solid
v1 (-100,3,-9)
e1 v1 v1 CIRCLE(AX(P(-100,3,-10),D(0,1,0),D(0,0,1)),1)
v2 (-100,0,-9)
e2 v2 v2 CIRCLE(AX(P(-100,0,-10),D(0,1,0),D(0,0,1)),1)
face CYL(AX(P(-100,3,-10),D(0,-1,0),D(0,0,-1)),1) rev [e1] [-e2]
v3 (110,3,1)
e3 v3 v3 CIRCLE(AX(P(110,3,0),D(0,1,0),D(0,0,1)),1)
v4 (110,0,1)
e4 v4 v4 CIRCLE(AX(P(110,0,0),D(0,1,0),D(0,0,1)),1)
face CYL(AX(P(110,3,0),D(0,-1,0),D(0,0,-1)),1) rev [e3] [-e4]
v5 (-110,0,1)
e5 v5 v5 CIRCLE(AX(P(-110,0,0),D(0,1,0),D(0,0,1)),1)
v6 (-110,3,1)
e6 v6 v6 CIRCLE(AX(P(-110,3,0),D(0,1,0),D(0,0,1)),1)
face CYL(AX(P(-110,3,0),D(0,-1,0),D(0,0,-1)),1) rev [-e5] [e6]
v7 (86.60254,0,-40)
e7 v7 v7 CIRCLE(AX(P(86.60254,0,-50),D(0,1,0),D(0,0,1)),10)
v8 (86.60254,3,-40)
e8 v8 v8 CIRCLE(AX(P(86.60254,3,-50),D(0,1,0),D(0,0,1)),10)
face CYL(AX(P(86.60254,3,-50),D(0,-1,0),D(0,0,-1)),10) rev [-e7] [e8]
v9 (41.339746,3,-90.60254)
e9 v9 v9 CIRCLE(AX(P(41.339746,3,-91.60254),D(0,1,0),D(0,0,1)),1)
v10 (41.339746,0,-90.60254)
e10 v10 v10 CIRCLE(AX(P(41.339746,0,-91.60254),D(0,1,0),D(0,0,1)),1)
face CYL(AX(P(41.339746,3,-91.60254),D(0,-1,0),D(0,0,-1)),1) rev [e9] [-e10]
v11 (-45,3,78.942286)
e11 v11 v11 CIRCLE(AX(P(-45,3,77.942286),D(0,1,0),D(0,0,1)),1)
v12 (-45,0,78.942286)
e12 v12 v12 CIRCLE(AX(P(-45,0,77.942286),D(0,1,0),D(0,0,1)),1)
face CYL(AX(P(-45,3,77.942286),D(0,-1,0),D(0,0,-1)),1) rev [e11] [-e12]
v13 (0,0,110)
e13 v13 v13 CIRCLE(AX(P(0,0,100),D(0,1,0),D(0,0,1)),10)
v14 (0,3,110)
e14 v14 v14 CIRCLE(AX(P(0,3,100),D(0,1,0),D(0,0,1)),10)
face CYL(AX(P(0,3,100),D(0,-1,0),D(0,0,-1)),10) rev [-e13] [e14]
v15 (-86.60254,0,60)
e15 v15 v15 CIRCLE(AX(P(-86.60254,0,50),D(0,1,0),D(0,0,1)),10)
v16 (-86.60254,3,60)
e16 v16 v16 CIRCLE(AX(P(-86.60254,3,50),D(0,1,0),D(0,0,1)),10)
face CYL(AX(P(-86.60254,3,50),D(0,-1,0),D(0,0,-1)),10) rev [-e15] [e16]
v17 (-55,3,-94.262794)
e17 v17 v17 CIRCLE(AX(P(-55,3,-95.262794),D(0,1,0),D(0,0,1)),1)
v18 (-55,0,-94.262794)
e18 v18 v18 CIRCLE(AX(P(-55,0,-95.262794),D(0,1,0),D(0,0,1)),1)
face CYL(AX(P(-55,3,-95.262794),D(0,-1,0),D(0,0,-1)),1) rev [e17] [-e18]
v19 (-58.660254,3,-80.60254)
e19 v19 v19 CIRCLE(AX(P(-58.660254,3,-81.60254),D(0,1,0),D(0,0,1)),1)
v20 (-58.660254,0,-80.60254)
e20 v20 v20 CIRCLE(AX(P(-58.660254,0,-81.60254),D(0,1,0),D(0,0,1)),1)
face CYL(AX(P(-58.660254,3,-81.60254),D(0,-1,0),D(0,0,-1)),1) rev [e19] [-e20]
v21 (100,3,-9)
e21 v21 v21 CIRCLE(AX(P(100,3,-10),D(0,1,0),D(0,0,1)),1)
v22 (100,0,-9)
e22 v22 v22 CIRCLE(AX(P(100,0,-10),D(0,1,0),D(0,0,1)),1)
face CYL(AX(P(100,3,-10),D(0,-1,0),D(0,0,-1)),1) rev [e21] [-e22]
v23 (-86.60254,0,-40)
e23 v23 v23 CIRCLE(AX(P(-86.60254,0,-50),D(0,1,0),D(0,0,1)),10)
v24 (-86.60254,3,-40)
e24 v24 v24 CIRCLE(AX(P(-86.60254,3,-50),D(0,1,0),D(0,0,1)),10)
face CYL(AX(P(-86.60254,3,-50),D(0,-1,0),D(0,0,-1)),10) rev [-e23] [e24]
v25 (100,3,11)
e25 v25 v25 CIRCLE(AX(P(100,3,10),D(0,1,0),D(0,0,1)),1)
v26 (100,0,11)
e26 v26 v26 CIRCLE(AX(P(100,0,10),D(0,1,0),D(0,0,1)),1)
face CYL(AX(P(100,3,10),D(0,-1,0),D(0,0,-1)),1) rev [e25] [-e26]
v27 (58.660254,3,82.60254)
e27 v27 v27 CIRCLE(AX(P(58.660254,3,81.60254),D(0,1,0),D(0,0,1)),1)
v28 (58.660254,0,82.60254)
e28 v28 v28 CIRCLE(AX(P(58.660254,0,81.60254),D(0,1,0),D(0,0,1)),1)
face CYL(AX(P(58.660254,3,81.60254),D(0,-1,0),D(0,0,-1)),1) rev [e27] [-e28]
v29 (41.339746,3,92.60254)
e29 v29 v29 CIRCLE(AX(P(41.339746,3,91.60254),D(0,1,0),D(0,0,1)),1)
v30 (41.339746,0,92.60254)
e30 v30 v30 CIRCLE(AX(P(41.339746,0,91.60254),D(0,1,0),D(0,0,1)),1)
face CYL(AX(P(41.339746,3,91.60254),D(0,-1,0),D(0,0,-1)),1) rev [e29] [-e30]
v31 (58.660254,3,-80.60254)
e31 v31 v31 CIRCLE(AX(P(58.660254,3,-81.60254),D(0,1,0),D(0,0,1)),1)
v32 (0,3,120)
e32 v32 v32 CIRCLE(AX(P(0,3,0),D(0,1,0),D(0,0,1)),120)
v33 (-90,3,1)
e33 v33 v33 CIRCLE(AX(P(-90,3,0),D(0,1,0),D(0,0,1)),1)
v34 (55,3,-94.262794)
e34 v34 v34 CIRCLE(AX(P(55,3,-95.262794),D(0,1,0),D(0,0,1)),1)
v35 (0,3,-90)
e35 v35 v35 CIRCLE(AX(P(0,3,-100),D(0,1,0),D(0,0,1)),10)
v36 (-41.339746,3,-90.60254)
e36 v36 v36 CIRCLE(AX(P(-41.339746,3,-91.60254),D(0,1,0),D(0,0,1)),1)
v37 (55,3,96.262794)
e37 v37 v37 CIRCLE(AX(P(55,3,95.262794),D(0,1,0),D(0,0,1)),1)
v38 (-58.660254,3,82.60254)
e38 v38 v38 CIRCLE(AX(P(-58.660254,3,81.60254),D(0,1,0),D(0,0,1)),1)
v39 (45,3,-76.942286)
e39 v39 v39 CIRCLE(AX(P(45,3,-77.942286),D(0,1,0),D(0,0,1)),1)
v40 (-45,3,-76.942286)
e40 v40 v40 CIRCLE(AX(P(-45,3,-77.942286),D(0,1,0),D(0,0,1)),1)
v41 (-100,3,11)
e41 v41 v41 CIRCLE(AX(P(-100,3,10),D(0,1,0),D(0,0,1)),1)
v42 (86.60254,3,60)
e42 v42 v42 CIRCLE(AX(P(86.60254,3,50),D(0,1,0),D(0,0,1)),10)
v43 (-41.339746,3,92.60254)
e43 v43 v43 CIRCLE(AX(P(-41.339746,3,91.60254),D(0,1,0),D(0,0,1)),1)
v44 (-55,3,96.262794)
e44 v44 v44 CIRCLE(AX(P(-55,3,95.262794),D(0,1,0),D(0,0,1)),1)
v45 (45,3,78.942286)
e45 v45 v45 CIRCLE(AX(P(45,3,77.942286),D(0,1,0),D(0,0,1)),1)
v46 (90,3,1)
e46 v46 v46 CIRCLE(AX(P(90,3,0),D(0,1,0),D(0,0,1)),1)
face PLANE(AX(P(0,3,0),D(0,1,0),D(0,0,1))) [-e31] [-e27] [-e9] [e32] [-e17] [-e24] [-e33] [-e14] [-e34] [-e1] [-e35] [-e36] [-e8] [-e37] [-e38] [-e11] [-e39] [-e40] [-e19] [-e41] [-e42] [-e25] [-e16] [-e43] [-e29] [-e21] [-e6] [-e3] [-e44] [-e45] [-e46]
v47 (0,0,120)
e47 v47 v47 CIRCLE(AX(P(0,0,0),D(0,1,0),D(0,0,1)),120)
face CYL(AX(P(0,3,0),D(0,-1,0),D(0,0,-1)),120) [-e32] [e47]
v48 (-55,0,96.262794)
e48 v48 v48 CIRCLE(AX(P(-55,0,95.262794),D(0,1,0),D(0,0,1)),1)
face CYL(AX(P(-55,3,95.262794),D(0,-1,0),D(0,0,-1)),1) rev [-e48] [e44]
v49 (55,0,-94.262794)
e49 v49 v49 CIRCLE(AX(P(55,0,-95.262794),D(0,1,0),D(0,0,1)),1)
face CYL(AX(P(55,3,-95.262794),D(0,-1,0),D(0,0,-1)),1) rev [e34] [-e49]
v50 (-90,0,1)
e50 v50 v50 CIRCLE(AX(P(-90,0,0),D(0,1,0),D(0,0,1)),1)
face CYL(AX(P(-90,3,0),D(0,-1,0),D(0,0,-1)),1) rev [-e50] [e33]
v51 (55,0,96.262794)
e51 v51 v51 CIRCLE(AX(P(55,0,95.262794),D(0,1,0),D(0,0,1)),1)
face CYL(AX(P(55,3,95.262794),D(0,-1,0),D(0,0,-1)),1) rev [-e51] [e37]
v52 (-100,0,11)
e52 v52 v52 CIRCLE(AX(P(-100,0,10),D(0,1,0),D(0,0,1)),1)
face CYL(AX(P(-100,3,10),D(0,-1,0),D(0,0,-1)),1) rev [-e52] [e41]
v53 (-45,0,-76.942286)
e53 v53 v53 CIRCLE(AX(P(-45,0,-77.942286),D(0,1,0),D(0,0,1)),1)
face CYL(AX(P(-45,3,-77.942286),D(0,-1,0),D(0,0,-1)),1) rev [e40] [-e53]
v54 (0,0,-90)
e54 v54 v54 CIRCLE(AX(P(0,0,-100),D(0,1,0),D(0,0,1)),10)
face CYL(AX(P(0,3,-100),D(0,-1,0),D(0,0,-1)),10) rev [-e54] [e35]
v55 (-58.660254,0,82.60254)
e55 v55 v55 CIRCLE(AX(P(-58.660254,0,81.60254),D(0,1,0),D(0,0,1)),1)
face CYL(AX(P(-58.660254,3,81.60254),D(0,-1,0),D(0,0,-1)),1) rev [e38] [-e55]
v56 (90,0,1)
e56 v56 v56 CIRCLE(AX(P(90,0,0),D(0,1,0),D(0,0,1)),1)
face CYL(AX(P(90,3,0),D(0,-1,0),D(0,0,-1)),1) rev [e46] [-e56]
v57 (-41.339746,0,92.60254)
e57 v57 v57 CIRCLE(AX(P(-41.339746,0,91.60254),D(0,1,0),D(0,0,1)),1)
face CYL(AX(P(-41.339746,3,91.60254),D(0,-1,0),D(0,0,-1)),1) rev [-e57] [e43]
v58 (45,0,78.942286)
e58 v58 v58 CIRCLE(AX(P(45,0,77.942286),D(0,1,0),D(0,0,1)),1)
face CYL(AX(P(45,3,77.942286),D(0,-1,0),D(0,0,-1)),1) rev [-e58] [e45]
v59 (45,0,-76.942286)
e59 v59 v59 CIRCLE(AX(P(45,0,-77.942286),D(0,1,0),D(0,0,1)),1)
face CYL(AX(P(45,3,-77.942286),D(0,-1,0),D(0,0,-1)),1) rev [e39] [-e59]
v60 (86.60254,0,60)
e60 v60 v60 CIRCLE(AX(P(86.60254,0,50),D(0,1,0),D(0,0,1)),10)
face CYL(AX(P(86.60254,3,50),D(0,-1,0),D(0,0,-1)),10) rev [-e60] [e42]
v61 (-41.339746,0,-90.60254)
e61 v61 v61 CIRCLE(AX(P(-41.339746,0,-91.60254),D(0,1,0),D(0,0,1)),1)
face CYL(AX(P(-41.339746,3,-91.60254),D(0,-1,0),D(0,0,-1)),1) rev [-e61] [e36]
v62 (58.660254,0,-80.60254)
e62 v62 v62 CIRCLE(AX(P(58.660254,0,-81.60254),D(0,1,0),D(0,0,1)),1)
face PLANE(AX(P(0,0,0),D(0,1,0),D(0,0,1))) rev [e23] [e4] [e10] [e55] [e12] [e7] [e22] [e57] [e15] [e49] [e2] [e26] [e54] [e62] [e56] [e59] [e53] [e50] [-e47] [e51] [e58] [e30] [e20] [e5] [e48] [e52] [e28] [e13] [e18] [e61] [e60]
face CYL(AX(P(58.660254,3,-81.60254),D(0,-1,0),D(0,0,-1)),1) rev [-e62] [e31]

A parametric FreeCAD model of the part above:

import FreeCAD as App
import Part
import Sketcher

V = App.Vector
Q = App.Units.Quantity

doc = App.newDocument("Part")
params = doc.addObject("Spreadsheet::Sheet", "Params")
for row, (alias, value) in enumerate([
    ("sketch1_diameter", "240 mm"),
    ("sketch1_diameter2", "2 mm"),
    ("sketch1_diameter3", "20 mm"),
    ("pad1_length", "3 mm"),
], start=1):
    params.set(f"A{row}", alias)
    params.set(f"B{row}", "=" + value)
    params.setAlias(f"B{row}", alias)

body = doc.addObject("PartDesign::Body", "Body")

# Sketch on XZ plane
sketch1 = body.newObject("Sketcher::SketchObject", "Sketch")
sketch1.AttachmentSupport = (doc.getObject("XZ_Plane"), [""])
sketch1.MapMode = "FlatFace"
sketch1.addGeometry([
    Part.Circle(V(0, 0, 0), V(0, 0, 1), 120),  # 0
    Part.Circle(V(-58.7, -81.6, 0), V(0, 0, 1), 1),  # 1
    Part.Circle(V(-86.6, -50, 0), V(0, 0, 1), 10),  # 2
    Part.Circle(V(-100, -10, 0), V(0, 0, 1), 1),  # 3
    Part.Circle(V(-55, -95.3, 0), V(0, 0, 1), 1),  # 4
    Part.Circle(V(-41.3, -91.6, 0), V(0, 0, 1), 1),  # 5
    Part.Circle(V(-45, -77.9, 0), V(0, 0, 1), 1),  # 6
    Part.Circle(V(0, -100, 0), V(0, 0, 1), 10),  # 7
    Part.Circle(V(-110, 0, 0), V(0, 0, 1), 1),  # 8
    Part.Circle(V(-100, 10, 0), V(0, 0, 1), 1),  # 9
    Part.Circle(V(-90, 0, 0), V(0, 0, 1), 1),  # 10
    Part.Circle(V(-86.6, 50, 0), V(0, 0, 1), 10),  # 11
    Part.Circle(V(-58.7, 81.6, 0), V(0, 0, 1), 1),  # 12
    Part.Circle(V(-45, 77.9, 0), V(0, 0, 1), 1),  # 13
    Part.Circle(V(-55, 95.3, 0), V(0, 0, 1), 1),  # 14
    Part.Circle(V(-41.3, 91.6, 0), V(0, 0, 1), 1),  # 15
    Part.Circle(V(41.3, -91.6, 0), V(0, 0, 1), 1),  # 16
    Part.Circle(V(55, -95.3, 0), V(0, 0, 1), 1),  # 17
    Part.Circle(V(45, -77.9, 0), V(0, 0, 1), 1),  # 18
    Part.Circle(V(58.7, -81.6, 0), V(0, 0, 1), 1),  # 19
    Part.Circle(V(86.6, -50, 0), V(0, 0, 1), 10),  # 20
    Part.Circle(V(90, 0, 0), V(0, 0, 1), 1),  # 21
    Part.Circle(V(100, -10, 0), V(0, 0, 1), 1),  # 22
    Part.Circle(V(110, 0, 0), V(0, 0, 1), 1),  # 23
    Part.Circle(V(0, 100, 0), V(0, 0, 1), 10),  # 24
    Part.Circle(V(45, 77.9, 0), V(0, 0, 1), 1),  # 25
    Part.Circle(V(41.3, 91.6, 0), V(0, 0, 1), 1),  # 26
    Part.Circle(V(55, 95.3, 0), V(0, 0, 1), 1),  # 27
    Part.Circle(V(100, 10, 0), V(0, 0, 1), 1),  # 28
    Part.Circle(V(86.6, 50, 0), V(0, 0, 1), 10),  # 29
    Part.Circle(V(58.7, 81.6, 0), V(0, 0, 1), 1),  # 30
], False)
sketch1.addConstraint([
    Sketcher.Constraint("Coincident", 0, 3, -1, 1),
    Sketcher.Constraint("Equal", 1, 3),
    Sketcher.Constraint("Equal", 3, 4),
    Sketcher.Constraint("Equal", 4, 5),
    Sketcher.Constraint("Equal", 5, 6),
    Sketcher.Constraint("Equal", 2, 7),
    Sketcher.Constraint("Equal", 6, 8),
    Sketcher.Constraint("Equal", 8, 9),
    Sketcher.Constraint("Equal", 9, 10),
    Sketcher.Constraint("Equal", 7, 11),
    Sketcher.Constraint("Equal", 10, 12),
    Sketcher.Constraint("Equal", 12, 13),
    Sketcher.Constraint("Equal", 13, 14),
    Sketcher.Constraint("Equal", 14, 15),
    Sketcher.Constraint("Equal", 15, 16),
    Sketcher.Constraint("Equal", 16, 17),
    Sketcher.Constraint("Equal", 17, 18),
    Sketcher.Constraint("Equal", 18, 19),
    Sketcher.Constraint("Equal", 11, 20),
    Sketcher.Constraint("Equal", 19, 21),
    Sketcher.Constraint("Equal", 21, 22),
    Sketcher.Constraint("Equal", 22, 23),
    Sketcher.Constraint("Equal", 20, 24),
    Sketcher.Constraint("Equal", 23, 25),
    Sketcher.Constraint("Equal", 25, 26),
    Sketcher.Constraint("Equal", 26, 27),
    Sketcher.Constraint("Equal", 27, 28),
    Sketcher.Constraint("Equal", 24, 29),
    Sketcher.Constraint("Equal", 28, 30),
    Sketcher.Constraint("Symmetric", 15, 3, 16, 3, -1, 1),
    Sketcher.Constraint("Symmetric", 14, 3, 17, 3, -1, 1),
    Sketcher.Constraint("Symmetric", 13, 3, 18, 3, -1, 1),
    Sketcher.Constraint("Symmetric", 12, 3, 19, 3, -1, 1),
    Sketcher.Constraint("Symmetric", 11, 3, 20, 3, -1, 1),
    Sketcher.Constraint("Symmetric", 10, 3, 21, 3, -1, 1),
    Sketcher.Constraint("Symmetric", 9, 3, 22, 3, -1, 1),
    Sketcher.Constraint("Symmetric", 8, 3, 23, 3, -1, 1),
    Sketcher.Constraint("Symmetric", 7, 3, 24, 3, -1, 1),
    Sketcher.Constraint("Symmetric", 6, 3, 25, 3, -1, 1),
    Sketcher.Constraint("Symmetric", 5, 3, 26, 3, -1, 1),
    Sketcher.Constraint("Symmetric", 4, 3, 27, 3, -1, 1),
    Sketcher.Constraint("Symmetric", 3, 3, 28, 3, -1, 1),
    Sketcher.Constraint("Symmetric", 2, 3, 29, 3, -1, 1),
    Sketcher.Constraint("Symmetric", 1, 3, 30, 3, -1, 1),
    Sketcher.Constraint("Symmetric", 5, 3, 16, 3, -2),
    Sketcher.Constraint("Symmetric", 4, 3, 17, 3, -2),
    Sketcher.Constraint("Symmetric", 6, 3, 18, 3, -2),
    Sketcher.Constraint("Symmetric", 1, 3, 19, 3, -2),
    Sketcher.Constraint("Symmetric", 2, 3, 20, 3, -2),
    Sketcher.Constraint("Symmetric", 3, 3, 22, 3, -2),
    Sketcher.Constraint("PointOnObject", 7, 3, -2),
    Sketcher.Constraint("PointOnObject", 8, 3, -1),
    Sketcher.Constraint("PointOnObject", 10, 3, -1),
    Sketcher.Constraint("Diameter", 0, Q("240 mm")),
    Sketcher.Constraint("Diameter", 1, Q("2 mm")),
    Sketcher.Constraint("Diameter", 2, Q("20 mm")),
    Sketcher.Constraint("DistanceY", 2, 3, -1, 1, Q("50 mm")),
    Sketcher.Constraint("DistanceX", 3, 3, -1, 1, Q("100 mm")),
    Sketcher.Constraint("DistanceY", 3, 3, -1, 1, Q("10 mm")),
    Sketcher.Constraint("DistanceX", 4, 3, -1, 1, Q("55 mm")),
    Sketcher.Constraint("DistanceX", 6, 3, -1, 1, Q("45 mm")),
    Sketcher.Constraint("DistanceY", 7, 3, -1, 1, Q("100 mm")),
    Sketcher.Constraint("DistanceX", 8, 3, -1, 1, Q("110 mm")),
    Sketcher.Constraint("DistanceX", 10, 3, -1, 1, Q("90 mm")),
    Sketcher.Constraint("DistanceY", 5, 3, 1, 3, Q("10 mm")),
    Sketcher.Constraint("DistanceY", 1, 3, -1, 1, Q("81.60254 mm")),
    Sketcher.Constraint("DistanceX", 2, 3, -1, 1, Q("86.60254 mm")),
    Sketcher.Constraint("DistanceX", 1, 3, 5, 3, Q("17.320508 mm")),
    Sketcher.Constraint("DistanceY", 4, 3, 6, 3, Q("17.320508 mm")),
    Sketcher.Constraint("DistanceX", 5, 3, 16, 3, Q("82.679492 mm")),
    Sketcher.Constraint("DistanceY", 4, 3, -1, 1, Q("95.262794 mm")),
])
sketch1.setExpression("Constraints[53]", "Params.sketch1_diameter")
sketch1.setExpression("Constraints[54]", "Params.sketch1_diameter2")
sketch1.setExpression("Constraints[55]", "Params.sketch1_diameter3")
pad1 = body.newObject("PartDesign::Pad", "Pad")
pad1.Profile = sketch1
pad1.setExpression("Length", "Params.pad1_length")
pad1.Reversed = True

doc.recompute()
